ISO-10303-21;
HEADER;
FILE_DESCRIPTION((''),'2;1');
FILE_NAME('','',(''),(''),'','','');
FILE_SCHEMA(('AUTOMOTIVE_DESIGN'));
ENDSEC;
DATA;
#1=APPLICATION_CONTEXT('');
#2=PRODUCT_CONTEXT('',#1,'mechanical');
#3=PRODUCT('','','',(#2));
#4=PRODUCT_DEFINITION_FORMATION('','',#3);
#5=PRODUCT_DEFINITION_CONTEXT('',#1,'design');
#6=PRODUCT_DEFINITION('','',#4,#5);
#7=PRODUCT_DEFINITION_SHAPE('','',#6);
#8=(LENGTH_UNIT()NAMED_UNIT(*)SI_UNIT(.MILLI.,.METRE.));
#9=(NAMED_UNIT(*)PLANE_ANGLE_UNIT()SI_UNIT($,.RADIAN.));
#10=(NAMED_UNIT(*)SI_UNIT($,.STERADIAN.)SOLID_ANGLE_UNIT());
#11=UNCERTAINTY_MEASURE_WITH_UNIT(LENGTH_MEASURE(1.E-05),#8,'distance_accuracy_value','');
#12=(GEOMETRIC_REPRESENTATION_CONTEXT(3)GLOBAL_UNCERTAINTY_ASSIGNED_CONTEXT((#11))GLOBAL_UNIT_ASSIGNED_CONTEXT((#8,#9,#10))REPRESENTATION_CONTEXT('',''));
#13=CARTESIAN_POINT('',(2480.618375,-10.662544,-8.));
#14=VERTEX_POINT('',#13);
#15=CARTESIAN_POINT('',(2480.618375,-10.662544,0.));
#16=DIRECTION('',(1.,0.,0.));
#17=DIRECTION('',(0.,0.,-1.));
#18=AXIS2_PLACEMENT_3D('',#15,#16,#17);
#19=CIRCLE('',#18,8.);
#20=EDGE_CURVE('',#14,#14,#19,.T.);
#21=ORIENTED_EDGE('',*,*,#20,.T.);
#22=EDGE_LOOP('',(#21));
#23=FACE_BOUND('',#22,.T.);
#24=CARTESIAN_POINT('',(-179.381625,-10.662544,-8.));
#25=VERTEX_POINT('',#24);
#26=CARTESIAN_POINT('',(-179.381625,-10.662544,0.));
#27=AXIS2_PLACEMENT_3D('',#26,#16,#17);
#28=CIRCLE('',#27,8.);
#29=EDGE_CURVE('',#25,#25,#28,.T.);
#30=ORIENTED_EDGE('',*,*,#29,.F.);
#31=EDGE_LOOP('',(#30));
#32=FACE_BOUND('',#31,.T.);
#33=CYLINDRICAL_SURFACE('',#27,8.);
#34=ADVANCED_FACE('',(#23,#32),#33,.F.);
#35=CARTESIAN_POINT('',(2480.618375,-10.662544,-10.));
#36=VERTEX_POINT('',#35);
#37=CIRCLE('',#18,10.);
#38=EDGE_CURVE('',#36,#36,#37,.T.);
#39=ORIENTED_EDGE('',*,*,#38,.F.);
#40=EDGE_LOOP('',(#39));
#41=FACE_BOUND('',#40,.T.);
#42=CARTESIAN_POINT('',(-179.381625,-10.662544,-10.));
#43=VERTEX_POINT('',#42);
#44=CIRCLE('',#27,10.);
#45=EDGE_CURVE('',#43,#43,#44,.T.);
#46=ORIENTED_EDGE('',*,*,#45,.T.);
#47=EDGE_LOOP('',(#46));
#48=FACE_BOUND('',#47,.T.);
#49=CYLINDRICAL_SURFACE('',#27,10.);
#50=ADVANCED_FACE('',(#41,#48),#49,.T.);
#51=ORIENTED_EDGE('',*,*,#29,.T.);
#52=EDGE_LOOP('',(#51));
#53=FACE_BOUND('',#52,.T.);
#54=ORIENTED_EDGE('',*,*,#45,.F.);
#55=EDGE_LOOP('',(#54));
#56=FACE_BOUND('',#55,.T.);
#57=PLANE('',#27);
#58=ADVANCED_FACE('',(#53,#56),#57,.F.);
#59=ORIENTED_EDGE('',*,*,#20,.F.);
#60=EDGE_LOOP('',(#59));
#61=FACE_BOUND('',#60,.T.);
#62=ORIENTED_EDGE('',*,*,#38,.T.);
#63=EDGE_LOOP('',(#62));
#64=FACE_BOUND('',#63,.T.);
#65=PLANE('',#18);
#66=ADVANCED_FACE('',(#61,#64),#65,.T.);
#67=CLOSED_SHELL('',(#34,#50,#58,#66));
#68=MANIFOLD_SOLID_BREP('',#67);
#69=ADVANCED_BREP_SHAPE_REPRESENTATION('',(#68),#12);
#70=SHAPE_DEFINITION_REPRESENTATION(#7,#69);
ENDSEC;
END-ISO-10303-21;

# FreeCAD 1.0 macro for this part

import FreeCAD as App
import Part
import Sketcher

doc = App.newDocument("Part")
body = doc.addObject("PartDesign::Body", "Body")

sketch1 = body.newObject("Sketcher::SketchObject", "Sketch")
sketch1.AttachmentSupport = (doc.getObject("YZ_Plane"), [""])
sketch1.MapMode = "FlatFace"
sketch1.AttachmentOffset = App.Placement(App.Vector(0, 0, -179.381625), App.Rotation())
sketch1.addGeometry([
    Part.Circle(App.Vector(-10.662544, 0, 0), App.Vector(0, 0, 1), 10),
    Part.Circle(App.Vector(-10.662544, 0, 0), App.Vector(0, 0, 1), 8),
], False)
sketch1.addConstraint([
    Sketcher.Constraint("Coincident", 1, 3, 0, 3),
    Sketcher.Constraint("PointOnObject", 0, 3, -1),
    Sketcher.Constraint("Diameter", 0, 20.0),
    Sketcher.Constraint("Diameter", 1, 16.0),
    Sketcher.Constraint("DistanceX", 0, 3, -1, 1, 10.662544),
])

sketch2 = body.newObject("Sketcher::SketchObject", "Sketch001")
sketch2.AttachmentSupport = (doc.getObject("XY_Plane"), [""])
sketch2.MapMode = "FlatFace"
sketch2.addGeometry(Part.LineSegment(App.Vector(-179.381625, -10.662544, 0), App.Vector(2480.618375, -10.662544, 0)), False)
sketch2.addConstraint([
    Sketcher.Constraint("Horizontal", 0),
    Sketcher.Constraint("DistanceX", 0, 1, 0, 2, 2660.0),
    Sketcher.Constraint("DistanceX", 0, 1, -1, 1, 179.381625),
    Sketcher.Constraint("DistanceY", 0, 1, -1, 1, 10.662544),
])
doc.recompute()

additivepipe = body.newObject("PartDesign::AdditivePipe", "AdditivePipe")
additivepipe.Profile = sketch1
additivepipe.Spine = (sketch2, ["Edge1"])

doc.recompute()
